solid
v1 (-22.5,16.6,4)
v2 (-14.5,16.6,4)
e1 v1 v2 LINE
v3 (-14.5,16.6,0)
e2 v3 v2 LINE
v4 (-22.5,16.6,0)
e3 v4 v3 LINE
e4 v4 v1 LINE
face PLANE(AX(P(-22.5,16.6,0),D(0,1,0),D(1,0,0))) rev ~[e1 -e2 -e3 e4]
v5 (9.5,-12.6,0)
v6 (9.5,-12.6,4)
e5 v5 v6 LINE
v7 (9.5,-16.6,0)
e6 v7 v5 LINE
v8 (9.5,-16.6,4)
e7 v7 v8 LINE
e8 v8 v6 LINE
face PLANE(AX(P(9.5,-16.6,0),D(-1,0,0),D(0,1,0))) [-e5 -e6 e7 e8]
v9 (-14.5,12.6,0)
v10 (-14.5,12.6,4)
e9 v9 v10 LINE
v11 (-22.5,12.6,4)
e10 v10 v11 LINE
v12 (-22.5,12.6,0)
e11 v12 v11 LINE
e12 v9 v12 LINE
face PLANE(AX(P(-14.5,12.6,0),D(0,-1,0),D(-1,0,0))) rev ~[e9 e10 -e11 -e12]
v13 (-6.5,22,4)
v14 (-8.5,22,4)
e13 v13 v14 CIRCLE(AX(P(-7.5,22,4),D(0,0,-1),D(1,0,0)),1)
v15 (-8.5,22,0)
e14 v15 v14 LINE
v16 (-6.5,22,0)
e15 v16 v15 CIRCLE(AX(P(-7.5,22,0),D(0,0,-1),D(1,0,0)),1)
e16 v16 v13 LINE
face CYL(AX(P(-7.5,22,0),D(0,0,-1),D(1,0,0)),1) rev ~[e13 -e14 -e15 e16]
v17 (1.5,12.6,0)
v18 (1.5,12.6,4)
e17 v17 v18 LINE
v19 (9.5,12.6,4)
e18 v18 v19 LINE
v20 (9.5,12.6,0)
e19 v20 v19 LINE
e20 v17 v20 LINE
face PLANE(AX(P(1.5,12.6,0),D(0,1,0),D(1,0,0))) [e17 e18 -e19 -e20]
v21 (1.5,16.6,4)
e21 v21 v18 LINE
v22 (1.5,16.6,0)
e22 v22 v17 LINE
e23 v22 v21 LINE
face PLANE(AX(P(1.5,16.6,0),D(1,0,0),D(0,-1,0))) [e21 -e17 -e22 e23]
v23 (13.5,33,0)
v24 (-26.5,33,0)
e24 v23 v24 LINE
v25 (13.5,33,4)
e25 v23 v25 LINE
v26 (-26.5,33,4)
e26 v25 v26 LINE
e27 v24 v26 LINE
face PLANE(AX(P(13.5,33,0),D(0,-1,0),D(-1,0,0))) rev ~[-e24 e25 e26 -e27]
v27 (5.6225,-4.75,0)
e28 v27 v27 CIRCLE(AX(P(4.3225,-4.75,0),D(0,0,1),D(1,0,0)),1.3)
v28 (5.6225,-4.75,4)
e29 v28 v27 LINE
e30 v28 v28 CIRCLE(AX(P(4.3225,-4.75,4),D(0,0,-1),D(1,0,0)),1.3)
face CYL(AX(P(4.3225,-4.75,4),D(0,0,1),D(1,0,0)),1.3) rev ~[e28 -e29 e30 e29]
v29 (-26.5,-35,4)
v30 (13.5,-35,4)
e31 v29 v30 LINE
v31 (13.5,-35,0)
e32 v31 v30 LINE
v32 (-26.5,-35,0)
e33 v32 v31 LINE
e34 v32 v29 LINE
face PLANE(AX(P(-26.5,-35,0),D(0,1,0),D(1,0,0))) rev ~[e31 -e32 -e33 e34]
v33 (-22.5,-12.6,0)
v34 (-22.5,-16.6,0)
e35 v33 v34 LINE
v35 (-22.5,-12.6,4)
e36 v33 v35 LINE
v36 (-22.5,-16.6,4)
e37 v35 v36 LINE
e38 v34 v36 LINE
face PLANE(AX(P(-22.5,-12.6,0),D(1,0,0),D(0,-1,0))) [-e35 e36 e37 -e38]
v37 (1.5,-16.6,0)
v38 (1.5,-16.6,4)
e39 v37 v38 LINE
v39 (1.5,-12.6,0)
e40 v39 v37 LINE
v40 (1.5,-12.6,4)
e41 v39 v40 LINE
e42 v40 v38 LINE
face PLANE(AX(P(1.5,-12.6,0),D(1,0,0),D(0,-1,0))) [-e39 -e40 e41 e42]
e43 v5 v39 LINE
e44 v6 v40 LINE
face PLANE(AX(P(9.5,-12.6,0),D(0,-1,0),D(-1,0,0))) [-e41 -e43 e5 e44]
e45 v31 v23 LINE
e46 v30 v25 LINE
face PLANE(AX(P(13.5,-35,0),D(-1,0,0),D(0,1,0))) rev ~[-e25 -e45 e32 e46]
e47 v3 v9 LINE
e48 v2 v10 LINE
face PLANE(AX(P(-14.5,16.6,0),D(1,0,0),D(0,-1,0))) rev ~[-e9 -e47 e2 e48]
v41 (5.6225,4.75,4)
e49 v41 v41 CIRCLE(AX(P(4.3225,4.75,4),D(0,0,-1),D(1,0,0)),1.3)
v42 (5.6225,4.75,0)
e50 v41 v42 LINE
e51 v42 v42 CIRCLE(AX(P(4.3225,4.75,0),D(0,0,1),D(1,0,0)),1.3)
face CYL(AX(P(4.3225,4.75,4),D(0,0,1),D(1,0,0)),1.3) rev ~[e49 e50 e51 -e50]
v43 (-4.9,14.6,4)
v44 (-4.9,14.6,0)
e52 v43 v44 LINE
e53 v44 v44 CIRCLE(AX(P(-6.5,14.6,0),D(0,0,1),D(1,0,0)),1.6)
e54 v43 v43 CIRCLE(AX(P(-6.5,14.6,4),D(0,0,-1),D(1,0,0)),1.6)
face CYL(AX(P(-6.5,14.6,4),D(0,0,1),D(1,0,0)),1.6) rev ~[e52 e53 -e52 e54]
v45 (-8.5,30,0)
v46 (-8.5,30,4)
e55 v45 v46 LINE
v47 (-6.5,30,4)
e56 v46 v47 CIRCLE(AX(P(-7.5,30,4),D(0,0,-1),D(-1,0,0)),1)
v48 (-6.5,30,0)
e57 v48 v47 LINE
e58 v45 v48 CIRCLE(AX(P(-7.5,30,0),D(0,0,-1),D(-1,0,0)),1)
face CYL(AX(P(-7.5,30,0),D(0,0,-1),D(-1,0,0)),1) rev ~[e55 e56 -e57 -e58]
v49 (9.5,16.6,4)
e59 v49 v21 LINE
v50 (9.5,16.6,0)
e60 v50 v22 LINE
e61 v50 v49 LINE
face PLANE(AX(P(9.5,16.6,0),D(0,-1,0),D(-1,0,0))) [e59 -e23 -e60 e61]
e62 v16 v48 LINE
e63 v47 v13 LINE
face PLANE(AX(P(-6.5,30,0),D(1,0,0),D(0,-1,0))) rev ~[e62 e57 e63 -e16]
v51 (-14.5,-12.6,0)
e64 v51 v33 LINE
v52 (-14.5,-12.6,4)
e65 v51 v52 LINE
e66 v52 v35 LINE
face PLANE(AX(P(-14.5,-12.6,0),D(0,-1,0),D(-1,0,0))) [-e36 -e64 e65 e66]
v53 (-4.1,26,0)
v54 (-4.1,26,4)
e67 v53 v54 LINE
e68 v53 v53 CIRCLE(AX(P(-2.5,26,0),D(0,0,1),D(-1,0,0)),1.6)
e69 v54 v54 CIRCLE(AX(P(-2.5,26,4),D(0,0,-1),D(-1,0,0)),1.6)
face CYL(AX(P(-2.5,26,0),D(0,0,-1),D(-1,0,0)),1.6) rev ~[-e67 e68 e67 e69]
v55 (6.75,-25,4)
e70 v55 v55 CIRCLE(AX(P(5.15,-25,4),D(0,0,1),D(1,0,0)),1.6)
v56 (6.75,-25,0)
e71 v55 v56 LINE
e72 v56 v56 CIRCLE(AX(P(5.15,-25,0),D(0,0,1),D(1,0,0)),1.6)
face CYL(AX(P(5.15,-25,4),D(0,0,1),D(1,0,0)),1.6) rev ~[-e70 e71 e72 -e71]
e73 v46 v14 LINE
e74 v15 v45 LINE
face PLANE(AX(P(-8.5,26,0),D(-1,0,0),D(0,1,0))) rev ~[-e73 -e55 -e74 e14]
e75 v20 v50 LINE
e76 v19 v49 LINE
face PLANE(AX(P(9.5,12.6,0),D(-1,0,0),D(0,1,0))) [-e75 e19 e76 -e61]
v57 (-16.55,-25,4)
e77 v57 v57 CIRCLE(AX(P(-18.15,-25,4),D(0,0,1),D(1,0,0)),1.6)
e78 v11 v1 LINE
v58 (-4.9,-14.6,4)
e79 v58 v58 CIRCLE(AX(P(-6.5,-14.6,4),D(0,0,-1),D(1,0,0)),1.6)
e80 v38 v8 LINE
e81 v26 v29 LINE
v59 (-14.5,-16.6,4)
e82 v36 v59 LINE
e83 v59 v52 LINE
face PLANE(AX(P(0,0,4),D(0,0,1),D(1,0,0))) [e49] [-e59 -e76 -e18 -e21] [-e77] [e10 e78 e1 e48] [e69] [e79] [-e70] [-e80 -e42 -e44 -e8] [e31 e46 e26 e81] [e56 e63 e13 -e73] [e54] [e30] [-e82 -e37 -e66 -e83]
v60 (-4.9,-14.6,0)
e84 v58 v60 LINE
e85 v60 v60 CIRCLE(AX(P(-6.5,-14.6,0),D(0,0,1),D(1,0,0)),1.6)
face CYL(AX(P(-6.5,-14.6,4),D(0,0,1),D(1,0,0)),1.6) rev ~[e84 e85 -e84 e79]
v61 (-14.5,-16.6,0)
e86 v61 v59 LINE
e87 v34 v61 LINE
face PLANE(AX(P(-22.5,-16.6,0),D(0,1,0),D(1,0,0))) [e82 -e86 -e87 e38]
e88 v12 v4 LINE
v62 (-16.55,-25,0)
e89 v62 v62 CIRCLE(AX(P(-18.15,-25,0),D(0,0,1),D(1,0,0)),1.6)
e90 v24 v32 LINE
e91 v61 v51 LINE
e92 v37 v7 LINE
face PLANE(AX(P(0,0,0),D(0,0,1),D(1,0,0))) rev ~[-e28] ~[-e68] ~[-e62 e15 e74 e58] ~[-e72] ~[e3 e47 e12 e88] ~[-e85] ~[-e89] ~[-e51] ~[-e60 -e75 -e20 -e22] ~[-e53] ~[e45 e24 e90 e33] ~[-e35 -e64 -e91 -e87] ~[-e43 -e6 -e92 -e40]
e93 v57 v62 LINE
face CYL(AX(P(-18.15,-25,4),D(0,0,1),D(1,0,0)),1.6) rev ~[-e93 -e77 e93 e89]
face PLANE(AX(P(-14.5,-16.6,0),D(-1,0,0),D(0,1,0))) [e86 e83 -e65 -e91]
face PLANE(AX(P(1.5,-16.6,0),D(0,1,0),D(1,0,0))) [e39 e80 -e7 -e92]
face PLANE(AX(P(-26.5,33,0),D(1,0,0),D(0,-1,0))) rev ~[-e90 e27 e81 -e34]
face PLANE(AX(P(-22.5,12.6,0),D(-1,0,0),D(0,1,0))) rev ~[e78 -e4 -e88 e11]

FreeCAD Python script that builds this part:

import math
import FreeCAD as App
import Part
import Sketcher
Q = App.Units.Quantity


def add_polygon(sketch, points):
    """Adds a closed chain of lines whose ends are joined by coincident constraints."""
    first, n = sketch.GeometryCount, len(points)
    for a, b in zip(points, points[1:] + points[:1]):
        sketch.addGeometry(Part.LineSegment(App.Vector(*a, 0), App.Vector(*b, 0)), False)
    for i in range(n):
        sketch.addConstraint(Sketcher.Constraint("Coincident", first + i, 2, first + (i + 1) % n, 1))

doc = App.newDocument("Part")
params = doc.addObject("Spreadsheet::Sheet", "Params")
for row, (alias, value) in enumerate([
    ("sketch1_width", "40 mm"),
    ("sketch1_width2", "8 mm"),
    ("sketch1_height", "68 mm"),
    ("sketch1_height2", "4 mm"),
    ("pad1_length", "4 mm"),
    ("sketch2_diameter", "3.2 mm"),
    ("pocket1_length", "4 mm"),
    ("sketch3_radius", "1 mm"),
    ("sketch3_diameter", "3.2 mm"),
    ("sketch3_height", "8 mm"),
    ("pocket2_length", "4 mm"),
    ("sketch4_diameter", "2.6 mm"),
    ("pocket3_length", "4 mm"),
    ("sketch5_diameter", "3.2 mm"),
    ("pocket4_length", "10 mm"),
], start=1):
    params.set(f"A{row}", alias)
    params.set(f"B{row}", "=" + value)
    params.setAlias(f"B{row}", alias)

body = doc.addObject("PartDesign::Body", "Body")

sketch1 = body.newObject("Sketcher::SketchObject", "Sketch")
sketch1.AttachmentSupport = (doc.getObject("XY_Plane"), [""])
sketch1.MapMode = "FlatFace"
add_polygon(sketch1, [(-26.5, 33), (-26.5, -35), (13.5, -35), (13.5, 33)])
add_polygon(sketch1, [(-14.5, -16.6), (-22.5, -16.6), (-22.5, -12.6), (-14.5, -12.6)])
add_polygon(sketch1, [(9.5, -16.6), (1.5, -16.6), (1.5, -12.6), (9.5, -12.6)])
add_polygon(sketch1, [(-22.5, 12.6), (-22.5, 16.6), (-14.5, 16.6), (-14.5, 12.6)])
add_polygon(sketch1, [(9.5, 12.6), (1.5, 12.6), (1.5, 16.6), (9.5, 16.6)])
sketch1.addConstraint([
    Sketcher.Constraint("Vertical", 0),
    Sketcher.Constraint("Horizontal", 1),
    Sketcher.Constraint("Vertical", 2),
    Sketcher.Constraint("Horizontal", 3),
    Sketcher.Constraint("Horizontal", 4),
    Sketcher.Constraint("Vertical", 5),
    Sketcher.Constraint("Horizontal", 6),
    Sketcher.Constraint("Vertical", 7),
    Sketcher.Constraint("Horizontal", 8),
    Sketcher.Constraint("Vertical", 9),
    Sketcher.Constraint("Horizontal", 10),
    Sketcher.Constraint("Vertical", 11),
    Sketcher.Constraint("Vertical", 12),
    Sketcher.Constraint("Horizontal", 13),
    Sketcher.Constraint("Vertical", 14),
    Sketcher.Constraint("Horizontal", 15),
    Sketcher.Constraint("Horizontal", 16),
    Sketcher.Constraint("Vertical", 17),
    Sketcher.Constraint("Horizontal", 18),
    Sketcher.Constraint("Vertical", 19),
    Sketcher.Constraint("Symmetric", 4, 2, 12, 2, -1),
    Sketcher.Constraint("Symmetric", 6, 2, 14, 2, -1),
    Sketcher.Constraint("Symmetric", 9, 2, 16, 2, -1),
    Sketcher.Constraint("Symmetric", 11, 2, 18, 2, -1),
    Sketcher.Constraint("Horizontal", 7, 2, 8, 2),
    Sketcher.Constraint("Horizontal", 6, 2, 9, 2),
    Sketcher.Constraint("Equal", 6, 8),
    Sketcher.Constraint("DistanceX", 1, 1, 1, 2, Q("40 mm")),
    Sketcher.Constraint("DistanceX", 4, 2, 4, 1, Q("8 mm")),
    Sketcher.Constraint("DistanceY", 0, 2, 0, 1, Q("68 mm")),
    Sketcher.Constraint("DistanceY", 5, 1, 5, 2, Q("4 mm")),
    Sketcher.Constraint("DistanceX", 0, 2, 4, 2, Q("4 mm")),
    Sketcher.Constraint("DistanceX", 7, 2, 8, 2, Q("16 mm")),
    Sketcher.Constraint("DistanceY", 12, 2, 3, 2, Q("16.4 mm")),
    Sketcher.Constraint("DistanceY", 6, 2, 14, 2, Q("25.2 mm")),
    Sketcher.Constraint("DistanceX", 0, 2, -1, 1, Q("26.5 mm")),
])
sketch1.setExpression("Constraints[47]", "Params.sketch1_width")
sketch1.setExpression("Constraints[48]", "Params.sketch1_width2")
sketch1.setExpression("Constraints[49]", "Params.sketch1_height")
sketch1.setExpression("Constraints[50]", "Params.sketch1_height2")
pad1 = body.newObject("PartDesign::Pad", "Pad")
pad1.Profile = sketch1
pad1.setExpression("Length", "Params.pad1_length")

sketch2 = body.newObject("Sketcher::SketchObject", "Sketch001")
sketch2.AttachmentSupport = (doc.getObject("XY_Plane"), [""])
sketch2.MapMode = "FlatFace"
sketch2.AttachmentOffset = App.Placement(App.Vector(0, 0, 4), App.Rotation())
sketch2.addGeometry([
    Part.Circle(App.Vector(-6.5, 14.6, 0), App.Vector(0, 0, 1), 1.6),
    Part.Circle(App.Vector(-6.5, -14.6, 0), App.Vector(0, 0, 1), 1.6),
], False)
sketch2.addConstraint([
    Sketcher.Constraint("Equal", 0, 1),
    Sketcher.Constraint("Symmetric", 0, 3, 1, 3, -1),
    Sketcher.Constraint("Diameter", 0, Q("3.2 mm")),
    Sketcher.Constraint("DistanceX", 0, 3, -1, 1, Q("6.5 mm")),
    Sketcher.Constraint("DistanceY", -1, 1, 0, 3, Q("14.6 mm")),
])
sketch2.setExpression("Constraints[2]", "Params.sketch2_diameter")
pocket1 = body.newObject("PartDesign::Pocket", "Pocket")
pocket1.Profile = sketch2
pocket1.setExpression("Length", "Params.pocket1_length")

sketch3 = body.newObject("Sketcher::SketchObject", "Sketch002")
sketch3.AttachmentSupport = (doc.getObject("XY_Plane"), [""])
sketch3.MapMode = "FlatFace"
sketch3.addGeometry([
    Part.Circle(App.Vector(-2.5, 26, 0), App.Vector(0, 0, 1), 1.6),
    Part.LineSegment(App.Vector(-6.5, 30, 0), App.Vector(-6.5, 22, 0)),
    Part.ArcOfCircle(Part.Circle(App.Vector(-7.5, 22, 0), App.Vector(0, 0, 1), 1), math.radians(180), math.radians(360)),
    Part.LineSegment(App.Vector(-8.5, 22, 0), App.Vector(-8.5, 30, 0)),
    Part.ArcOfCircle(Part.Circle(App.Vector(-7.5, 30, 0), App.Vector(0, 0, 1), 1), math.radians(0), math.radians(180)),
], False)
sketch3.addConstraint([
    Sketcher.Constraint("Tangent", 1, 2, 2, 2),
    Sketcher.Constraint("Tangent", 2, 1, 3, 1),
    Sketcher.Constraint("Tangent", 3, 2, 4, 2),
    Sketcher.Constraint("Tangent", 4, 1, 1, 1),
    Sketcher.Constraint("Vertical", 1),
    Sketcher.Constraint("Vertical", 3),
    Sketcher.Constraint("Radius", 2, Q("1 mm")),
    Sketcher.Constraint("Diameter", 0, Q("3.2 mm")),
    Sketcher.Constraint("DistanceX", 2, 3, 0, 3, Q("5 mm")),
    Sketcher.Constraint("DistanceY", 1, 2, 1, 1, Q("8 mm")),
    Sketcher.Constraint("DistanceY", -1, 1, 0, 3, Q("26 mm")),
    Sketcher.Constraint("DistanceY", -1, 1, 2, 3, Q("22 mm")),
    Sketcher.Constraint("DistanceX", 0, 3, -1, 1, Q("2.5 mm")),
])
sketch3.setExpression("Constraints[6]", "Params.sketch3_radius")
sketch3.setExpression("Constraints[7]", "Params.sketch3_diameter")
sketch3.setExpression("Constraints[9]", "Params.sketch3_height")
pocket2 = body.newObject("PartDesign::Pocket", "Pocket001")
pocket2.Profile = sketch3
pocket2.setExpression("Length", "Params.pocket2_length")
pocket2.Reversed = True

sketch4 = body.newObject("Sketcher::SketchObject", "Sketch003")
sketch4.AttachmentSupport = (doc.getObject("XY_Plane"), [""])
sketch4.MapMode = "FlatFace"
sketch4.AttachmentOffset = App.Placement(App.Vector(0, 0, 4), App.Rotation())
sketch4.addGeometry([
    Part.Circle(App.Vector(4.3225, -4.75, 0), App.Vector(0, 0, 1), 1.3),
    Part.Circle(App.Vector(4.3225, 4.75, 0), App.Vector(0, 0, 1), 1.3),
], False)
sketch4.addConstraint([
    Sketcher.Constraint("Equal", 0, 1),
    Sketcher.Constraint("Symmetric", 0, 3, 1, 3, -1),
    Sketcher.Constraint("Diameter", 0, Q("2.6 mm")),
    Sketcher.Constraint("DistanceY", 0, 3, 1, 3, Q("9.5 mm")),
    Sketcher.Constraint("DistanceX", -1, 1, 0, 3, Q("4.3225 mm")),
])
sketch4.setExpression("Constraints[2]", "Params.sketch4_diameter")
pocket3 = body.newObject("PartDesign::Pocket", "Pocket002")
pocket3.Profile = sketch4
pocket3.setExpression("Length", "Params.pocket3_length")

sketch5 = body.newObject("Sketcher::SketchObject", "Sketch004")
sketch5.AttachmentSupport = (doc.getObject("XY_Plane"), [""])
sketch5.MapMode = "FlatFace"
sketch5.AttachmentOffset = App.Placement(App.Vector(0, 0, 4), App.Rotation())
sketch5.addGeometry([
    Part.Circle(App.Vector(-18.15, -25, 0), App.Vector(0, 0, 1), 1.6),
    Part.Circle(App.Vector(5.15, -25, 0), App.Vector(0, 0, 1), 1.6),
], False)
sketch5.addConstraint([
    Sketcher.Constraint("Equal", 0, 1),
    Sketcher.Constraint("Horizontal", 0, 3, 1, 3),
    Sketcher.Constraint("Diameter", 0, Q("3.2 mm")),
    Sketcher.Constraint("DistanceY", 0, 3, -1, 1, Q("25 mm")),
    Sketcher.Constraint("DistanceX", 0, 3, 1, 3, Q("23.3 mm")),
    Sketcher.Constraint("DistanceX", 0, 3, -1, 1, Q("18.15 mm")),
])
sketch5.setExpression("Constraints[2]", "Params.sketch5_diameter")
pocket4 = body.newObject("PartDesign::Pocket", "Pocket003")
pocket4.Profile = sketch5
pocket4.setExpression("Length", "Params.pocket4_length")

doc.recompute()
